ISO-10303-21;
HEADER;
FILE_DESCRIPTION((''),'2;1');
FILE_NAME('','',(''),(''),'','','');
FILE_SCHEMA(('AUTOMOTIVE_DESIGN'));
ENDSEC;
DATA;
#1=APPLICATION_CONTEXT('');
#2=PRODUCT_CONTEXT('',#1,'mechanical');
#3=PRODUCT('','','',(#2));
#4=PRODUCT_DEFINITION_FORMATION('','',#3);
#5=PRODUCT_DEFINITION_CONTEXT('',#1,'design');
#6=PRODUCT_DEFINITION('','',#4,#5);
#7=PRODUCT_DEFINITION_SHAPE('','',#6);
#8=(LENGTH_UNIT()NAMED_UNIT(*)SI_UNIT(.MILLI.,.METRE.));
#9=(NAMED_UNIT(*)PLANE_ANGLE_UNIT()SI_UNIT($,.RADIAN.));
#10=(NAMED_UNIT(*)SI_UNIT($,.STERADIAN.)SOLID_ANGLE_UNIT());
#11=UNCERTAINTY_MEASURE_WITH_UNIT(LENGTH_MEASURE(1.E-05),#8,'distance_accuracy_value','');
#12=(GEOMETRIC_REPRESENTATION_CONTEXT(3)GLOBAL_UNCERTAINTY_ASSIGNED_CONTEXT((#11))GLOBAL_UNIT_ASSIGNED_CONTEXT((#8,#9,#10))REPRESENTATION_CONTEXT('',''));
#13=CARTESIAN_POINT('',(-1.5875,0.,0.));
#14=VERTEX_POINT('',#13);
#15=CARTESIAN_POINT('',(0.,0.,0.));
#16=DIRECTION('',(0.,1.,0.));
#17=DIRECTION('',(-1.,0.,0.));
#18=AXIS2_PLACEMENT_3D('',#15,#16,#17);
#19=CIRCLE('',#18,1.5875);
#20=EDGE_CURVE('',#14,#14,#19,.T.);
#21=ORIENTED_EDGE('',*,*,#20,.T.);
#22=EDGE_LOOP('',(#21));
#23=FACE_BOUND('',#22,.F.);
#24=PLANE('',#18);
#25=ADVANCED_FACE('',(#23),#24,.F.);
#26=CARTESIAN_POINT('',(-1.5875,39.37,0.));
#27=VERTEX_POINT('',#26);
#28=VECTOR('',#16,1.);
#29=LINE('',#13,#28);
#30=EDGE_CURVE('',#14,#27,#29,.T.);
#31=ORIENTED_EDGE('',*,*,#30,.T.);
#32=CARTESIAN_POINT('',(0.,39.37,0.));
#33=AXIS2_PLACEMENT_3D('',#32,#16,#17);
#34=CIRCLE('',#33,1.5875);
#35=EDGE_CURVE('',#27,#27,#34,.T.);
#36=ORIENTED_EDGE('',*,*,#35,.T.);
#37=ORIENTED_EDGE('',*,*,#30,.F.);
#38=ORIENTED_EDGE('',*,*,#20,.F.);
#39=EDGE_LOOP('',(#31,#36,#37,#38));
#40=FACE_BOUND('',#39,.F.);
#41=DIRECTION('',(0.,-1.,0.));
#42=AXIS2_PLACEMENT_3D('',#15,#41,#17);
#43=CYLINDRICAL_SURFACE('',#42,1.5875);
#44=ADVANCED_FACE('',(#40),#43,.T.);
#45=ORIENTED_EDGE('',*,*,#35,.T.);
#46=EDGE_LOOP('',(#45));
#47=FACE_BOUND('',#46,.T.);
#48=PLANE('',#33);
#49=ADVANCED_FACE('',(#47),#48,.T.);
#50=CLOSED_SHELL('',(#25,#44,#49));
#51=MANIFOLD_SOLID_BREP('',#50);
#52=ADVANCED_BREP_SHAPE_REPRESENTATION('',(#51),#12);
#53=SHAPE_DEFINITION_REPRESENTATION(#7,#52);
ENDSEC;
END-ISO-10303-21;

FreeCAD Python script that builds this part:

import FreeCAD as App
import Part
import Sketcher

V = App.Vector
Q = App.Units.Quantity

doc = App.newDocument("Part")
body = doc.addObject("PartDesign::Body", "Body")

sketch1 = body.newObject("Sketcher::SketchObject", "Sketch")
sketch1.AttachmentSupport = (doc.getObject("XZ_Plane"), [""])
sketch1.MapMode = "FlatFace"
sketch1.addGeometry(Part.Circle(V(0, 0, 0), V(0, 0, 1), 1.5875), False)
sketch1.addConstraint(Sketcher.Constraint("Coincident", 0, 3, -1, 1))
sketch1.addConstraint(Sketcher.Constraint("Diameter", 0, Q("0.125 in")))
pad1 = body.newObject("PartDesign::Pad", "Pad")
pad1.Profile = sketch1
pad1.Length = Q("1.55 in")
pad1.Reversed = True

doc.recompute()
